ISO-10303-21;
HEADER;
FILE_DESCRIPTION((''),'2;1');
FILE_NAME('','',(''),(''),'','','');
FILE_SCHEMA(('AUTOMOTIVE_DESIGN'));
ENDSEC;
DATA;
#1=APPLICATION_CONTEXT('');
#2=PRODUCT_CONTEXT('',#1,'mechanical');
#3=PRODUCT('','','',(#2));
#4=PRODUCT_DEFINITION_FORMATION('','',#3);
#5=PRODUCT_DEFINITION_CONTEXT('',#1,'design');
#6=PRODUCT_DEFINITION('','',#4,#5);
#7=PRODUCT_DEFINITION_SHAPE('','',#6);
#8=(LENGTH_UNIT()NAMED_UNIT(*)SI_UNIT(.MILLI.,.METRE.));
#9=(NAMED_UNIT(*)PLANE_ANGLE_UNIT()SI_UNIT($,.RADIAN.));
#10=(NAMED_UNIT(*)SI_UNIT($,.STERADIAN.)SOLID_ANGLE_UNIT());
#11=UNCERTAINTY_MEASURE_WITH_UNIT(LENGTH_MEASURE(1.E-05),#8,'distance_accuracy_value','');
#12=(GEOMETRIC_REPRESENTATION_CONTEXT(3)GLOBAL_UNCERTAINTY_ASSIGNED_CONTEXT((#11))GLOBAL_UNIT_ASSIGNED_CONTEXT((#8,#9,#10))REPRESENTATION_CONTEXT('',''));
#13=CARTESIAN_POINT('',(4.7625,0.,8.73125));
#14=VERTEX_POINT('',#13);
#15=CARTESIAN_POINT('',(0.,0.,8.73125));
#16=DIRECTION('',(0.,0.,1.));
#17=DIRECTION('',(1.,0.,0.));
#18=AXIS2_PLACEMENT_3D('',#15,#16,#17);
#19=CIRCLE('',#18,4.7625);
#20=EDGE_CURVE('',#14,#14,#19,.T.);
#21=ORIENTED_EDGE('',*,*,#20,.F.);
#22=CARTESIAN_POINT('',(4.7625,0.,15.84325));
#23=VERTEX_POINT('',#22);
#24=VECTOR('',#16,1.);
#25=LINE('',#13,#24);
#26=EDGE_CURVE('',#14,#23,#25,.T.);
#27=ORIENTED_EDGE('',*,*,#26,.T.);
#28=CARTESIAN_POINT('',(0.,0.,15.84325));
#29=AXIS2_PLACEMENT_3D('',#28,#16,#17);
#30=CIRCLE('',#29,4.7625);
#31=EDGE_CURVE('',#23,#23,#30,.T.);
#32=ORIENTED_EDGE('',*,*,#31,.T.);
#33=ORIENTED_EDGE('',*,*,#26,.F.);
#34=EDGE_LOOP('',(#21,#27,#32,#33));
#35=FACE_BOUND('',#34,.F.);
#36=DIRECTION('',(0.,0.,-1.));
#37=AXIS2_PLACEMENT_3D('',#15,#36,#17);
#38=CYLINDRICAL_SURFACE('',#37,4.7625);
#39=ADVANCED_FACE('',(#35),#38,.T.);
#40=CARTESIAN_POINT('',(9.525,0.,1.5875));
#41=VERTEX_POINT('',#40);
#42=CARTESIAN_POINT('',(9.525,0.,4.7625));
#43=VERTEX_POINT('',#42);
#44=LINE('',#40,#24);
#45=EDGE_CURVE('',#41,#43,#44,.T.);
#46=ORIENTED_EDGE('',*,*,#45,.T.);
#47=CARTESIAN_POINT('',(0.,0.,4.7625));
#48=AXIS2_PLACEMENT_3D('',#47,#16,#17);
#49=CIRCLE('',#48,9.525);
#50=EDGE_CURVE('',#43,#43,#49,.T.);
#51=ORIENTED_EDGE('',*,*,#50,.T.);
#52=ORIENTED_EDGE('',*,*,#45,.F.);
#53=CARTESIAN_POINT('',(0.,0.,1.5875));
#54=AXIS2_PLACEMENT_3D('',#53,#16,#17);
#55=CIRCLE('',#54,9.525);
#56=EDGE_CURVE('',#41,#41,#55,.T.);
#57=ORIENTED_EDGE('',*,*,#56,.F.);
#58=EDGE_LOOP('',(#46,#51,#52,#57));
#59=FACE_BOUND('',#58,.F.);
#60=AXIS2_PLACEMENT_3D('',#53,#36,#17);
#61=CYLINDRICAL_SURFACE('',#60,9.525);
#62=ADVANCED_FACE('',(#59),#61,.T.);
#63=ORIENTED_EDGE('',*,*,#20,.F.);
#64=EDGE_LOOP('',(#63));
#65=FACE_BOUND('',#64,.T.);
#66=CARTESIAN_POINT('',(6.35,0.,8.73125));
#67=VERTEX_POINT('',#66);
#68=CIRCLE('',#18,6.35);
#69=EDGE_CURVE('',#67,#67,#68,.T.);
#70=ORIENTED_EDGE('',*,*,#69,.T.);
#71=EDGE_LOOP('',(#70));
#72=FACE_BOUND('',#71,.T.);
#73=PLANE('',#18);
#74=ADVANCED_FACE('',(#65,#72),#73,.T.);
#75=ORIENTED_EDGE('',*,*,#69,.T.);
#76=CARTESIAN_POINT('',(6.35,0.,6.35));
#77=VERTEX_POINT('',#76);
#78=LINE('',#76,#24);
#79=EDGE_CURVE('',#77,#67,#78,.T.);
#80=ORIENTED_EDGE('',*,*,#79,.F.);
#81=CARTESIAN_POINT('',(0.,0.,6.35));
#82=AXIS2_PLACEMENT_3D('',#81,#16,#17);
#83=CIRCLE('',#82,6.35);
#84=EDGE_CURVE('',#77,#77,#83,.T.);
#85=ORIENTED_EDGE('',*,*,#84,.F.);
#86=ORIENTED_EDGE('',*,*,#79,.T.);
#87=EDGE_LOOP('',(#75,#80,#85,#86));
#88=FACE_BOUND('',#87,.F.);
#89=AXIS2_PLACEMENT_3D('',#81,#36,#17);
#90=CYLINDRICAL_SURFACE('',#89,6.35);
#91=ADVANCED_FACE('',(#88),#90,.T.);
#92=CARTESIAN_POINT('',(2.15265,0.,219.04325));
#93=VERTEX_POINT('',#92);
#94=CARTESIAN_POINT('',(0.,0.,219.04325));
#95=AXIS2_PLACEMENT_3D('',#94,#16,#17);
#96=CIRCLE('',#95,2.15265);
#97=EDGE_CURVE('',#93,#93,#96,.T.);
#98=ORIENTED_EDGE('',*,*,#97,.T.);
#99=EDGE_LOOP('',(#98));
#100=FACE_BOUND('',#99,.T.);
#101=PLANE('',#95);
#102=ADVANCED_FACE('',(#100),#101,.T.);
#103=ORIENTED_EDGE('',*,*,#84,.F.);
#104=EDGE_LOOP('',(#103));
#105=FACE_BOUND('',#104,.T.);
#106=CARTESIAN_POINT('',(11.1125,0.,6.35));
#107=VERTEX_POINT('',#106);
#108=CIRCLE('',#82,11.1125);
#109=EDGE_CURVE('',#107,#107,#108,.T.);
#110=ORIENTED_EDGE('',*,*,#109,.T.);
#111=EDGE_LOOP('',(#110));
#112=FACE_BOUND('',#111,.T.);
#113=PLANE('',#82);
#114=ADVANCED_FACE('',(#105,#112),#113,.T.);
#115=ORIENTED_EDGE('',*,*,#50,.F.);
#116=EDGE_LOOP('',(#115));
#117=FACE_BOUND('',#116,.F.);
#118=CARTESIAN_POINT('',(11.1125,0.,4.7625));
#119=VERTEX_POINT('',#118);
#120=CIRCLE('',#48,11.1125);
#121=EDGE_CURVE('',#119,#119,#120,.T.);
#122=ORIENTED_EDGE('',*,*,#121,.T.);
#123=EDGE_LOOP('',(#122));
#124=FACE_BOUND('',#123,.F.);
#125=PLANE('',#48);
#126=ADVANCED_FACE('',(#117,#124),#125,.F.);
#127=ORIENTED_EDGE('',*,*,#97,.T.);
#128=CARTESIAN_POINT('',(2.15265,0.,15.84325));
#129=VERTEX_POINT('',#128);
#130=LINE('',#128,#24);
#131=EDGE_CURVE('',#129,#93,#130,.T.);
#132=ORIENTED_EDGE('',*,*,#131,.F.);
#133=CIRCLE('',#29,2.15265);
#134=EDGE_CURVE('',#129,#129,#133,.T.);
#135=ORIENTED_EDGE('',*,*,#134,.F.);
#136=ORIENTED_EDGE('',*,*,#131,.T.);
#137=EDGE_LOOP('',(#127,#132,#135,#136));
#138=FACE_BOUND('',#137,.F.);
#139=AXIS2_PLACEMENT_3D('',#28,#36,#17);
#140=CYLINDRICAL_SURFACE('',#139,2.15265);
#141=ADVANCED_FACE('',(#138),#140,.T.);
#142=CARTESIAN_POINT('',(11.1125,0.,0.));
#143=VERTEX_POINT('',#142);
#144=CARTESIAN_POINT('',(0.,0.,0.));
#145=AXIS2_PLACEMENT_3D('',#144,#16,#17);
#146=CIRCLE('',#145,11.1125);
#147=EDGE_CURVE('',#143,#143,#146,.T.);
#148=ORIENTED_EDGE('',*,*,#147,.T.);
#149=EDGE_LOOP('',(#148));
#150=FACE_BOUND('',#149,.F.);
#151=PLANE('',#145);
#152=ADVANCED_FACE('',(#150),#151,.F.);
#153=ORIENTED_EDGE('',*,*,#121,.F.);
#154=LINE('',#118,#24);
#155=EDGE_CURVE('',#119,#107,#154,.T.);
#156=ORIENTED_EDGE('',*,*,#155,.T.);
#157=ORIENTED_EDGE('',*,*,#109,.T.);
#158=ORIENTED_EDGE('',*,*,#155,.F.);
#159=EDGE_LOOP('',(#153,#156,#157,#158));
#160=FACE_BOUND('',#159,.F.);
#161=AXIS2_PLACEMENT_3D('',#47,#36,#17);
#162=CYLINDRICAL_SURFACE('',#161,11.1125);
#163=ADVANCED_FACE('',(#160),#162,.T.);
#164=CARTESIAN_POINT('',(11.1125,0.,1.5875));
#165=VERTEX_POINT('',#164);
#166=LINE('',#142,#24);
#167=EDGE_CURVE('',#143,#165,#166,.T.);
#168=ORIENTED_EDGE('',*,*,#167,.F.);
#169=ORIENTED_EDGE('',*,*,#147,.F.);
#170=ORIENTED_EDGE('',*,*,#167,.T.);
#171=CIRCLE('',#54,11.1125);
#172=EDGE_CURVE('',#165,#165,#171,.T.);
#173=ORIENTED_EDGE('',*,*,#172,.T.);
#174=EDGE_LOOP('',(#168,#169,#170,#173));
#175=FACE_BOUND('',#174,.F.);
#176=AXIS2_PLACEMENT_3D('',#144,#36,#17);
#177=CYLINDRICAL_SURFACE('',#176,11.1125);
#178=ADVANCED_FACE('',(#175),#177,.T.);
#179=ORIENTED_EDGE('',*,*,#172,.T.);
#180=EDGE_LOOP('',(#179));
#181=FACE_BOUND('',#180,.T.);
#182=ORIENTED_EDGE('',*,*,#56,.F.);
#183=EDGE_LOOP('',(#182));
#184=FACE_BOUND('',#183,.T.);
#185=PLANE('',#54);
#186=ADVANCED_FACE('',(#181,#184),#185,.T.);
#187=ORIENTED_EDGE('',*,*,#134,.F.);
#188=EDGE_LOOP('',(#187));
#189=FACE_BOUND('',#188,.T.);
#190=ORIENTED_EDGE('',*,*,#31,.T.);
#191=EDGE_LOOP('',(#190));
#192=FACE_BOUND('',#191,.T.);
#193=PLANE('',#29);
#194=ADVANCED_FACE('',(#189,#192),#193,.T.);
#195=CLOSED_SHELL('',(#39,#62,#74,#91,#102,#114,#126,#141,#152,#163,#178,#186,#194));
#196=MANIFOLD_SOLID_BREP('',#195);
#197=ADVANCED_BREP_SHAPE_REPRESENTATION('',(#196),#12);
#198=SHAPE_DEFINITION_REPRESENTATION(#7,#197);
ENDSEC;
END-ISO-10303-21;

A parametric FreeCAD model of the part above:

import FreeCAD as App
import Part
import Sketcher

V = App.Vector
Q = App.Units.Quantity

doc = App.newDocument("Part")
body = doc.addObject("PartDesign::Body", "Body")

# Sketch on XY plane
sketch1 = body.newObject("Sketcher::SketchObject", "Sketch")
sketch1.AttachmentSupport = (doc.getObject("XY_Plane"), [""])
sketch1.MapMode = "FlatFace"
sketch1.addGeometry(Part.Circle(V(0, 0, 0), V(0, 0, 1), 11.1125), False)
sketch1.addConstraint([
    Sketcher.Constraint("Coincident", 0, 3, -1, 1),
    Sketcher.Constraint("Diameter", 0, Q("0.875 in")),
])
pad1 = body.newObject("PartDesign::Pad", "Pad")
pad1.Profile = sketch1
pad1.Length = Q("0.0625 in")

# Sketch on XY plane
sketch2 = body.newObject("Sketcher::SketchObject", "Sketch001")
sketch2.AttachmentSupport = (doc.getObject("XY_Plane"), [""])
sketch2.MapMode = "FlatFace"
sketch2.AttachmentOffset = App.Placement(V(0, 0, 0.0625 * 25.4), App.Rotation())
sketch2.addGeometry(Part.Circle(V(0, 0, 0), V(0, 0, 1), 9.525), False)
sketch2.addConstraint([
    Sketcher.Constraint("Coincident", 0, 3, -1, 1),
    Sketcher.Constraint("Diameter", 0, Q("0.75 in")),
])
pad2 = body.newObject("PartDesign::Pad", "Pad001")
pad2.Profile = sketch2
pad2.Length = Q("0.125 in")

# Sketch on XY plane
sketch3 = body.newObject("Sketcher::SketchObject", "Sketch002")
sketch3.AttachmentSupport = (doc.getObject("XY_Plane"), [""])
sketch3.MapMode = "FlatFace"
sketch3.AttachmentOffset = App.Placement(V(0, 0, 0.1875 * 25.4), App.Rotation())
sketch3.addGeometry(Part.Circle(V(0, 0, 0), V(0, 0, 1), 11.1125), False)
sketch3.addConstraint([
    Sketcher.Constraint("Coincident", 0, 3, -1, 1),
    Sketcher.Constraint("Diameter", 0, Q("0.875 in")),
])
pad3 = body.newObject("PartDesign::Pad", "Pad002")
pad3.Profile = sketch3
pad3.Length = Q("0.0625 in")

# Sketch on XY plane
sketch4 = body.newObject("Sketcher::SketchObject", "Sketch003")
sketch4.AttachmentSupport = (doc.getObject("XY_Plane"), [""])
sketch4.MapMode = "FlatFace"
sketch4.AttachmentOffset = App.Placement(V(0, 0, 0.25 * 25.4), App.Rotation())
sketch4.addGeometry(Part.Circle(V(0, 0, 0), V(0, 0, 1), 6.35), False)
sketch4.addConstraint([
    Sketcher.Constraint("Coincident", 0, 3, -1, 1),
    Sketcher.Constraint("Diameter", 0, Q("0.5 in")),
])
pad4 = body.newObject("PartDesign::Pad", "Pad003")
pad4.Profile = sketch4
pad4.Length = Q("0.09375 in")

# Sketch on XY plane
sketch5 = body.newObject("Sketcher::SketchObject", "Sketch004")
sketch5.AttachmentSupport = (doc.getObject("XY_Plane"), [""])
sketch5.MapMode = "FlatFace"
sketch5.AttachmentOffset = App.Placement(V(0, 0, 0.34375 * 25.4), App.Rotation())
sketch5.addGeometry(Part.Circle(V(0, 0, 0), V(0, 0, 1), 4.7625), False)
sketch5.addConstraint([
    Sketcher.Constraint("Coincident", 0, 3, -1, 1),
    Sketcher.Constraint("Diameter", 0, Q("0.375 in")),
])
pad5 = body.newObject("PartDesign::Pad", "Pad004")
pad5.Profile = sketch5
pad5.Length = Q("0.28 in")

# Sketch on XY plane
sketch6 = body.newObject("Sketcher::SketchObject", "Sketch005")
sketch6.AttachmentSupport = (doc.getObject("XY_Plane"), [""])
sketch6.MapMode = "FlatFace"
sketch6.AttachmentOffset = App.Placement(V(0, 0, 15.84325), App.Rotation())
sketch6.addGeometry(Part.Circle(V(0, 0, 0), V(0, 0, 1), 2.15265), False)
sketch6.addConstraint([
    Sketcher.Constraint("Coincident", 0, 3, -1, 1),
    Sketcher.Constraint("Diameter", 0, Q("0.1695 in")),
])
pad6 = body.newObject("PartDesign::Pad", "Pad005")
pad6.Profile = sketch6
pad6.Length = Q("8 in")

doc.recompute()
